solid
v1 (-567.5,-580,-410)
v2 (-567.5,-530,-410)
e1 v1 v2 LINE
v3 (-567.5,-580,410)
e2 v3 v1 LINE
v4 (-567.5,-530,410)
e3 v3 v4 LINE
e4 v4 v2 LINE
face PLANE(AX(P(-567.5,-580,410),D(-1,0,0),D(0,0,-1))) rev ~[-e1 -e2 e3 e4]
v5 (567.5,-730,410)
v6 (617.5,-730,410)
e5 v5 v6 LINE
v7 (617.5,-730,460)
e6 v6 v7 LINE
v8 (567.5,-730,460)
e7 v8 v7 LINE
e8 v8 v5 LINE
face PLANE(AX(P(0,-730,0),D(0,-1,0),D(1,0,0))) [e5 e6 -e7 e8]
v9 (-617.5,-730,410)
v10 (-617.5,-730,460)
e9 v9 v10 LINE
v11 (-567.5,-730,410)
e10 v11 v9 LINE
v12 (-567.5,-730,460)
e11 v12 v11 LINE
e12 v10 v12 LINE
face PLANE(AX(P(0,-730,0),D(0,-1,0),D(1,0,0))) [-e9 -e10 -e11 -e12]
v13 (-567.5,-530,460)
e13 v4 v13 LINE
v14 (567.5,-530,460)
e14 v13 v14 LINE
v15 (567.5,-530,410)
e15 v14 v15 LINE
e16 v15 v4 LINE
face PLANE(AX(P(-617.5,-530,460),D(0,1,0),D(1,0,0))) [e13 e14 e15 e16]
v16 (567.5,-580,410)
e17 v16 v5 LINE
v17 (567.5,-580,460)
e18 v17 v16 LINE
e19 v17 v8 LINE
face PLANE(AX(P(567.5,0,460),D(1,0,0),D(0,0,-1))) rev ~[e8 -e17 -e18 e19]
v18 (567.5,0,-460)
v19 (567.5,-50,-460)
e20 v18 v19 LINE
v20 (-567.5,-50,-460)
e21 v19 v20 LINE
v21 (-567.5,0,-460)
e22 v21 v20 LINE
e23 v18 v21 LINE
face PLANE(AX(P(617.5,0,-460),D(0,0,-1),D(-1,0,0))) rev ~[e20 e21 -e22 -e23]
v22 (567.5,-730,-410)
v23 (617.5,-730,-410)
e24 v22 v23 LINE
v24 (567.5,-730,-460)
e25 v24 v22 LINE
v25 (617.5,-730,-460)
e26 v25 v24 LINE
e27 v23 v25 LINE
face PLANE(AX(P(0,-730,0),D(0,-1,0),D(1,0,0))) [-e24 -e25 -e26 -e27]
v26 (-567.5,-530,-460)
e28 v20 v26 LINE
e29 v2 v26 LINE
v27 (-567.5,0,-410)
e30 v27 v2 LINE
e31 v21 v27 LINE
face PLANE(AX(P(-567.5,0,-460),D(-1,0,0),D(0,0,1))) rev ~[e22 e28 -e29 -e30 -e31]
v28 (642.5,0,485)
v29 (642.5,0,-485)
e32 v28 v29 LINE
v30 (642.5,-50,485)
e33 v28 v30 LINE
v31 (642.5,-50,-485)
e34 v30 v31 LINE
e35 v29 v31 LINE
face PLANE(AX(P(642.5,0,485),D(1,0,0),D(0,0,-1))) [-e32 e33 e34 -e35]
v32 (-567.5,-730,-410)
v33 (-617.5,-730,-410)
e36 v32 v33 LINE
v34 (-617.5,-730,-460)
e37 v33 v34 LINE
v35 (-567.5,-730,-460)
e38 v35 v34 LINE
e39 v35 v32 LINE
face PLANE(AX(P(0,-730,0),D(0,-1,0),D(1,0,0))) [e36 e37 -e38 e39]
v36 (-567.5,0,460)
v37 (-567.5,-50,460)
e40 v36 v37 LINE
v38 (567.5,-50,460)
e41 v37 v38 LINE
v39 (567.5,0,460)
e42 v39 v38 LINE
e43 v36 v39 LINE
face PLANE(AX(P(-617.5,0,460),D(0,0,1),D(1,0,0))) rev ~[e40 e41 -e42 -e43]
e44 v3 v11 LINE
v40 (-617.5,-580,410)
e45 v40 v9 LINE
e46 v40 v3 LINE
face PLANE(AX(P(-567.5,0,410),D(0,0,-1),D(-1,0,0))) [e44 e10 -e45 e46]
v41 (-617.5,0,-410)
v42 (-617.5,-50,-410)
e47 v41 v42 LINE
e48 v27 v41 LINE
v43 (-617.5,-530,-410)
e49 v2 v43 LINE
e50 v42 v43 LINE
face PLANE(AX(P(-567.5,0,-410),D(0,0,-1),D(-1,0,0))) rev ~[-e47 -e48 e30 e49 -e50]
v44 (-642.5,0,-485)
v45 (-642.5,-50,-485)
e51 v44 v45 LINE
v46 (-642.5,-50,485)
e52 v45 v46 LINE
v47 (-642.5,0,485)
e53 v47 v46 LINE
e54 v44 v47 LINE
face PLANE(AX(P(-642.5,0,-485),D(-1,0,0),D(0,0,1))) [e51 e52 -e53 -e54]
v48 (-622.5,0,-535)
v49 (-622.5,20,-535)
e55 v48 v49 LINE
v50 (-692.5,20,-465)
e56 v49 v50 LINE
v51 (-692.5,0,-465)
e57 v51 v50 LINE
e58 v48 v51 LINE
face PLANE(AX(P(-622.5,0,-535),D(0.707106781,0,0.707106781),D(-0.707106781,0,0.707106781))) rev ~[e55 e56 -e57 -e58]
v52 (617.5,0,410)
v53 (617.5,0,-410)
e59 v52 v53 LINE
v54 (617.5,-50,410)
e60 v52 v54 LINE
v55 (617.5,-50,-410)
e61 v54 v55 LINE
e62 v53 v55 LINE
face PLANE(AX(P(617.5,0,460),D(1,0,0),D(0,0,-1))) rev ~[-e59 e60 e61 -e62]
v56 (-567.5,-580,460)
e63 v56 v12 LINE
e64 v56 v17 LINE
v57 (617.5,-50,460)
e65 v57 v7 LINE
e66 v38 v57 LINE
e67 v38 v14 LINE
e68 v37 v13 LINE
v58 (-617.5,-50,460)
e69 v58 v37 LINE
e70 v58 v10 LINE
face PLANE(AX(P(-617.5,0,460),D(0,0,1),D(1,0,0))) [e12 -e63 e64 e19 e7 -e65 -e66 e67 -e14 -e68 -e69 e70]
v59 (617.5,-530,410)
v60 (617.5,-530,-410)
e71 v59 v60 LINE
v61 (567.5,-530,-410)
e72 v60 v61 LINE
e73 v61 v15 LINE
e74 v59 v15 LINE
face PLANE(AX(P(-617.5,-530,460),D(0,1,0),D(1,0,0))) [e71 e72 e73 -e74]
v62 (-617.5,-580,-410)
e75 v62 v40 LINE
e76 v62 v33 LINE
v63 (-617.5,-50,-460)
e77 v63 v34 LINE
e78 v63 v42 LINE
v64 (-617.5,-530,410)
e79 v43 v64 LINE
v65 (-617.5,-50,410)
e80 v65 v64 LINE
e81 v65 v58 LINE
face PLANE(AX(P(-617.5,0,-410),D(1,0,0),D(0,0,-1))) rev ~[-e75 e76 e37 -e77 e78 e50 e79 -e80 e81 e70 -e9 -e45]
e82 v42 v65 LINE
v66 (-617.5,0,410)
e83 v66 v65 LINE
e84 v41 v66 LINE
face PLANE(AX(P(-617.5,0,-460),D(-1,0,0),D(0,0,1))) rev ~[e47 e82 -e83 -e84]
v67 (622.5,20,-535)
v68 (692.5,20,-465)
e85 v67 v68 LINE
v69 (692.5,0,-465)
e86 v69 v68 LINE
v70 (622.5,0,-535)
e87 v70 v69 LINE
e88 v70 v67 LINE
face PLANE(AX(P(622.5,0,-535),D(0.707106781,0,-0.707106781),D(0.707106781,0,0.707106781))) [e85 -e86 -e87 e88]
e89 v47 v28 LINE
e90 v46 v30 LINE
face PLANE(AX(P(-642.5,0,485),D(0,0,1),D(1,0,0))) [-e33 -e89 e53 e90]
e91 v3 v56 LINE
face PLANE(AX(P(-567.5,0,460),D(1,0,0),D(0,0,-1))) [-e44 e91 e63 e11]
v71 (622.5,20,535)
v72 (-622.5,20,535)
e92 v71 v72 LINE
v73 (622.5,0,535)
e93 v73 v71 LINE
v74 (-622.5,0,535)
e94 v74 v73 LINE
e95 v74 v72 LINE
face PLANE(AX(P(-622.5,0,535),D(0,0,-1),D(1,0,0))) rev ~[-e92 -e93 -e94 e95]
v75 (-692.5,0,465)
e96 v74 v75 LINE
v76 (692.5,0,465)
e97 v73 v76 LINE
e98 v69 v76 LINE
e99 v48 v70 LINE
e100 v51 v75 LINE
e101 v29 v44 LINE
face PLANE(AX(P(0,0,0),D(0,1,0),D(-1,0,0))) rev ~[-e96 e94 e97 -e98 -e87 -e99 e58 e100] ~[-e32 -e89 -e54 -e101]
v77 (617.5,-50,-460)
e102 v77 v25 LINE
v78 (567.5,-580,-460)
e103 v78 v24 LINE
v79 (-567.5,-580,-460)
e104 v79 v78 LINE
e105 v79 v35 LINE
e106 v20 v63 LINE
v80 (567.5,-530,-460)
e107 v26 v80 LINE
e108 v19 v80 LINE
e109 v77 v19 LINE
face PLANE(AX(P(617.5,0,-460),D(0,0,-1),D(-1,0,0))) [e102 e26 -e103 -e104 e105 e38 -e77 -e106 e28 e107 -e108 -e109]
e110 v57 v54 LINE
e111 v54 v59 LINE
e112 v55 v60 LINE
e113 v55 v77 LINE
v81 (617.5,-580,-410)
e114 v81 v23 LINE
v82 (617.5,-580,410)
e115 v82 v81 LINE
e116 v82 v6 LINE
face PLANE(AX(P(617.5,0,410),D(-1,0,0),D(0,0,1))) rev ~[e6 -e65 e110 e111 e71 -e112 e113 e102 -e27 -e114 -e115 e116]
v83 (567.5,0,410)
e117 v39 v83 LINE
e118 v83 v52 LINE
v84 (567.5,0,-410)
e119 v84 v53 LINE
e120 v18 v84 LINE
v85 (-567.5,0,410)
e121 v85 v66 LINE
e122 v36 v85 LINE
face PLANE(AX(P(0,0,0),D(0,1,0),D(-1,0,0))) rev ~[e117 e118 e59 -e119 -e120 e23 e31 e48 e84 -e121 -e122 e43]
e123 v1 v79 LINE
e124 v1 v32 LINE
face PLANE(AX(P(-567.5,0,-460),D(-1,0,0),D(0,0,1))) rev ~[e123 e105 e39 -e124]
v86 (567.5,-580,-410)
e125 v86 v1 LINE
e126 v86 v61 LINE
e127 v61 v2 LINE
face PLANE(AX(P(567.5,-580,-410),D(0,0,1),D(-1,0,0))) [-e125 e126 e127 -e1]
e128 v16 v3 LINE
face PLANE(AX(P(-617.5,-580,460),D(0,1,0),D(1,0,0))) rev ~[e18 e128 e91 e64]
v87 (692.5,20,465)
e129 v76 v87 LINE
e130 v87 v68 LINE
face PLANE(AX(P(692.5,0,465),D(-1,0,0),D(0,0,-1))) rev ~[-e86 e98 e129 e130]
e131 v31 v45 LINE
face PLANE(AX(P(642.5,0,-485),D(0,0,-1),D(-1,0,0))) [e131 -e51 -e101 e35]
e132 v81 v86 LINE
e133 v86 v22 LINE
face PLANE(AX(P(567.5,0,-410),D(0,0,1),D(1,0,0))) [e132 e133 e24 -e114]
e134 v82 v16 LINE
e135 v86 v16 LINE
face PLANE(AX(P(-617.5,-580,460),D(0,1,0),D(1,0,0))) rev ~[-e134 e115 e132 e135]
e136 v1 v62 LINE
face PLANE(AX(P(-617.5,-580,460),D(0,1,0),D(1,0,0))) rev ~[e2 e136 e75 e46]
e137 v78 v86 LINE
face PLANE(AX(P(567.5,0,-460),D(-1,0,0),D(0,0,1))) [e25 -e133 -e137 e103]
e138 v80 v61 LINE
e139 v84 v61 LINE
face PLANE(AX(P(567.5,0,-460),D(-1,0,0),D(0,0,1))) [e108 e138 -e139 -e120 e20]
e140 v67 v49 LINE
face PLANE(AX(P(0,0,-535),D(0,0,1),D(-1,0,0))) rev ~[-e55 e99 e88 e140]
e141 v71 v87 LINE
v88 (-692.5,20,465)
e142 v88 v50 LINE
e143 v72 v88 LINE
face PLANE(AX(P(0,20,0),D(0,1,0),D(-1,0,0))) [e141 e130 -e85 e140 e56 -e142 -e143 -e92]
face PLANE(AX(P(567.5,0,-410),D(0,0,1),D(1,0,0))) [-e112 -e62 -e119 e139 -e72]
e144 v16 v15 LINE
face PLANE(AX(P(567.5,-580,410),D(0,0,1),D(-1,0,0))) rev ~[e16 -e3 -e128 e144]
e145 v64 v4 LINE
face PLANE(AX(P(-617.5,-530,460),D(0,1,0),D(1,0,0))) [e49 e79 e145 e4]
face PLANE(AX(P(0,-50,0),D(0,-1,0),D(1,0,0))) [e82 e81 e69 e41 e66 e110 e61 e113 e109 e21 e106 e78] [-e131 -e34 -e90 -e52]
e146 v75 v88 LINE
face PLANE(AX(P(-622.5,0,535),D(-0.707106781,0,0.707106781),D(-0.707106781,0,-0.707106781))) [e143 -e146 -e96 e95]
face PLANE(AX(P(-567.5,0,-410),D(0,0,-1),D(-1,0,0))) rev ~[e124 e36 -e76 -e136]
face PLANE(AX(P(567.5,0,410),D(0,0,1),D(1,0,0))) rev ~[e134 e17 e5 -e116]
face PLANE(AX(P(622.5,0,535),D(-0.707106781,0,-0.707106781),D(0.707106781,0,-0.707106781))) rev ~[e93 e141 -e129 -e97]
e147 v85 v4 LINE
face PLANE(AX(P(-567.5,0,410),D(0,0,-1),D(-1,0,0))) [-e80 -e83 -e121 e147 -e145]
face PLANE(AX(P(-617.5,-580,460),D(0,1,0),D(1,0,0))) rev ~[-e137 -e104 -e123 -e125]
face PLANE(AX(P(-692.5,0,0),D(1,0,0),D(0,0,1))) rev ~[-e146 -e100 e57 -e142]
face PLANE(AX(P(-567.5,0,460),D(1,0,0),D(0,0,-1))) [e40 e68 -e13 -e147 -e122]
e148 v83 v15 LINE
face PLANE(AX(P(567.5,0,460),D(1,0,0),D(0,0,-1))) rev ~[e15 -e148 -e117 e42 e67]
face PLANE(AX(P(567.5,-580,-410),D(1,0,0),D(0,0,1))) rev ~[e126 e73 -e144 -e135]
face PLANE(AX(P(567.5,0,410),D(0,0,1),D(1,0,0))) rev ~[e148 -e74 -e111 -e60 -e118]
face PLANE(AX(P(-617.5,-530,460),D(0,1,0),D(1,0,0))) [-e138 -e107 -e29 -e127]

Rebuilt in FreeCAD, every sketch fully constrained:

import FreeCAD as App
import Part
import Sketcher
Q = App.Units.Quantity

doc = App.newDocument("Part")
params = doc.addObject("Spreadsheet::Sheet", "Params")
for row, (alias, value) in enumerate([
    ("pad1_length", "20 mm"),
    ("sketch2_width", "1285 mm"),
    ("sketch2_height", "970 mm"),
    ("pad2_length", "50 mm"),
    ("sketch3_width", "50 mm"),
    ("pad3_length", "730 mm"),
    ("sketch4_width", "50 mm"),
    ("sketch4_width2", "1135 mm"),
    ("sketch4_height", "820 mm"),
    ("pad4_length", "50 mm"),
], start=1):
    params.set(f"A{row}", alias)
    params.set(f"B{row}", "=" + value)
    params.setAlias(f"B{row}", alias)

body = doc.addObject("PartDesign::Body", "Body")

sketch1 = body.newObject("Sketcher::SketchObject", "Sketch")
sketch1.AttachmentSupport = (doc.getObject("XZ_Plane"), [""])
sketch1.MapMode = "FlatFace"
sketch1.addGeometry([
    Part.LineSegment(App.Vector(-692, 465, 0), App.Vector(-622, 535, 0)),
    Part.LineSegment(App.Vector(-622, 535, 0), App.Vector(622, 535, 0)),
    Part.LineSegment(App.Vector(622, 535, 0), App.Vector(692, 465, 0)),
    Part.LineSegment(App.Vector(692, 465, 0), App.Vector(692, -465, 0)),
    Part.LineSegment(App.Vector(692, -465, 0), App.Vector(622, -535, 0)),
    Part.LineSegment(App.Vector(622, -535, 0), App.Vector(-622, -535, 0)),
    Part.LineSegment(App.Vector(-622, -535, 0), App.Vector(-692, -465, 0)),
    Part.LineSegment(App.Vector(-692, -465, 0), App.Vector(-692, 465, 0)),
], False)
sketch1.addConstraint([
    Sketcher.Constraint("Coincident", 0, 2, 1, 1),
    Sketcher.Constraint("Coincident", 1, 2, 2, 1),
    Sketcher.Constraint("Coincident", 2, 2, 3, 1),
    Sketcher.Constraint("Coincident", 3, 2, 4, 1),
    Sketcher.Constraint("Coincident", 4, 2, 5, 1),
    Sketcher.Constraint("Coincident", 5, 2, 6, 1),
    Sketcher.Constraint("Coincident", 6, 2, 7, 1),
    Sketcher.Constraint("Coincident", 7, 2, 0, 1),
    Sketcher.Constraint("Horizontal", 1),
    Sketcher.Constraint("Vertical", 3),
    Sketcher.Constraint("Horizontal", 5),
    Sketcher.Constraint("Vertical", 7),
    Sketcher.Constraint("Symmetric", 0, 2, 4, 2, -1, 1),
    Sketcher.Constraint("Symmetric", 2, 2, 6, 2, -1, 1),
    Sketcher.Constraint("Perpendicular", 0, 2),
    Sketcher.Constraint("Perpendicular", 2, 4),
    Sketcher.Constraint("Perpendicular", 4, 6),
    Sketcher.Constraint("Horizontal", 3, 2, 6, 2),
    Sketcher.Constraint("Vertical", 1, 2, 4, 2),
    Sketcher.Constraint("DistanceY", -1, 1, 0, 2, Q("535 mm")),
    Sketcher.Constraint("DistanceX", 1, 2, 2, 2, Q("70 mm")),
    Sketcher.Constraint("DistanceX", 6, 2, 3, 2, Q("1385 mm")),
])
pad1 = body.newObject("PartDesign::Pad", "Pad")
pad1.Profile = sketch1
pad1.setExpression("Length", "Params.pad1_length")
pad1.Reversed = True

sketch2 = body.newObject("Sketcher::SketchObject", "Sketch001")
sketch2.AttachmentSupport = (doc.getObject("XZ_Plane"), [""])
sketch2.MapMode = "FlatFace"
sketch2.addGeometry([
    Part.LineSegment(App.Vector(642, 485, 0), App.Vector(-642, 485, 0)),
    Part.LineSegment(App.Vector(-642, 485, 0), App.Vector(-642, -485, 0)),
    Part.LineSegment(App.Vector(-642, -485, 0), App.Vector(642, -485, 0)),
    Part.LineSegment(App.Vector(642, -485, 0), App.Vector(642, 485, 0)),
    Part.LineSegment(App.Vector(-618, -460, 0), App.Vector(-618, 460, 0)),
    Part.LineSegment(App.Vector(-618, 460, 0), App.Vector(618, 460, 0)),
    Part.LineSegment(App.Vector(618, 460, 0), App.Vector(618, -460, 0)),
    Part.LineSegment(App.Vector(618, -460, 0), App.Vector(-618, -460, 0)),
], False)
sketch2.addConstraint([
    Sketcher.Constraint("Coincident", 0, 2, 1, 1),
    Sketcher.Constraint("Coincident", 1, 2, 2, 1),
    Sketcher.Constraint("Coincident", 2, 2, 3, 1),
    Sketcher.Constraint("Coincident", 3, 2, 0, 1),
    Sketcher.Constraint("Coincident", 4, 2, 5, 1),
    Sketcher.Constraint("Coincident", 5, 2, 6, 1),
    Sketcher.Constraint("Coincident", 6, 2, 7, 1),
    Sketcher.Constraint("Coincident", 7, 2, 4, 1),
    Sketcher.Constraint("Horizontal", 0),
    Sketcher.Constraint("Vertical", 1),
    Sketcher.Constraint("Horizontal", 2),
    Sketcher.Constraint("Vertical", 3),
    Sketcher.Constraint("Vertical", 4),
    Sketcher.Constraint("Horizontal", 5),
    Sketcher.Constraint("Vertical", 6),
    Sketcher.Constraint("Horizontal", 7),
    Sketcher.Constraint("Symmetric", 0, 2, 2, 2, -1, 1),
    Sketcher.Constraint("Symmetric", 4, 2, 6, 2, -1, 1),
    Sketcher.Constraint("DistanceX", 0, 2, 4, 2, Q("25 mm")),
    Sketcher.Constraint("DistanceY", 4, 2, 0, 2, Q("25 mm")),
    Sketcher.Constraint("DistanceX", 0, 2, 0, 1, Q("1285 mm")),
    Sketcher.Constraint("DistanceY", 1, 2, 1, 1, Q("970 mm")),
])
sketch2.setExpression("Constraints[20]", "Params.sketch2_width")
sketch2.setExpression("Constraints[21]", "Params.sketch2_height")
pad2 = body.newObject("PartDesign::Pad", "Pad001")
pad2.Profile = sketch2
pad2.setExpression("Length", "Params.pad2_length")

sketch3 = body.newObject("Sketcher::SketchObject", "Sketch002")
sketch3.AttachmentSupport = (doc.getObject("XZ_Plane"), [""])
sketch3.MapMode = "FlatFace"
sketch3.addGeometry([
    Part.LineSegment(App.Vector(618, 460, 0), App.Vector(568, 460, 0)),
    Part.LineSegment(App.Vector(568, 460, 0), App.Vector(568, 410, 0)),
    Part.LineSegment(App.Vector(568, 410, 0), App.Vector(618, 410, 0)),
    Part.LineSegment(App.Vector(618, 410, 0), App.Vector(618, 460, 0)),
    Part.LineSegment(App.Vector(568, -410, 0), App.Vector(568, -460, 0)),
    Part.LineSegment(App.Vector(568, -460, 0), App.Vector(618, -460, 0)),
    Part.LineSegment(App.Vector(618, -460, 0), App.Vector(618, -410, 0)),
    Part.LineSegment(App.Vector(618, -410, 0), App.Vector(568, -410, 0)),
    Part.LineSegment(App.Vector(-568, 460, 0), App.Vector(-618, 460, 0)),
    Part.LineSegment(App.Vector(-618, 460, 0), App.Vector(-618, 410, 0)),
    Part.LineSegment(App.Vector(-618, 410, 0), App.Vector(-568, 410, 0)),
    Part.LineSegment(App.Vector(-568, 410, 0), App.Vector(-568, 460, 0)),
    Part.LineSegment(App.Vector(-568, -410, 0), App.Vector(-618, -410, 0)),
    Part.LineSegment(App.Vector(-618, -410, 0), App.Vector(-618, -460, 0)),
    Part.LineSegment(App.Vector(-618, -460, 0), App.Vector(-568, -460, 0)),
    Part.LineSegment(App.Vector(-568, -460, 0), App.Vector(-568, -410, 0)),
], False)
sketch3.addConstraint([
    Sketcher.Constraint("Coincident", 0, 2, 1, 1),
    Sketcher.Constraint("Coincident", 1, 2, 2, 1),
    Sketcher.Constraint("Coincident", 2, 2, 3, 1),
    Sketcher.Constraint("Coincident", 3, 2, 0, 1),
    Sketcher.Constraint("Coincident", 4, 2, 5, 1),
    Sketcher.Constraint("Coincident", 5, 2, 6, 1),
    Sketcher.Constraint("Coincident", 6, 2, 7, 1),
    Sketcher.Constraint("Coincident", 7, 2, 4, 1),
    Sketcher.Constraint("Coincident", 8, 2, 9, 1),
    Sketcher.Constraint("Coincident", 9, 2, 10, 1),
    Sketcher.Constraint("Coincident", 10, 2, 11, 1),
    Sketcher.Constraint("Coincident", 11, 2, 8, 1),
    Sketcher.Constraint("Coincident", 12, 2, 13, 1),
    Sketcher.Constraint("Coincident", 13, 2, 14, 1),
    Sketcher.Constraint("Coincident", 14, 2, 15, 1),
    Sketcher.Constraint("Coincident", 15, 2, 12, 1),
    Sketcher.Constraint("Horizontal", 0),
    Sketcher.Constraint("Vertical", 1),
    Sketcher.Constraint("Horizontal", 2),
    Sketcher.Constraint("Vertical", 3),
    Sketcher.Constraint("Vertical", 4),
    Sketcher.Constraint("Horizontal", 5),
    Sketcher.Constraint("Vertical", 6),
    Sketcher.Constraint("Horizontal", 7),
    Sketcher.Constraint("Horizontal", 8),
    Sketcher.Constraint("Vertical", 9),
    Sketcher.Constraint("Horizontal", 10),
    Sketcher.Constraint("Vertical", 11),
    Sketcher.Constraint("Horizontal", 12),
    Sketcher.Constraint("Vertical", 13),
    Sketcher.Constraint("Horizontal", 14),
    Sketcher.Constraint("Vertical", 15),
    Sketcher.Constraint("Symmetric", 5, 2, 8, 2, -1, 1),
    Sketcher.Constraint("Symmetric", 7, 2, 10, 2, -1, 1),
    Sketcher.Constraint("Symmetric", 2, 2, 12, 2, -1, 1),
    Sketcher.Constraint("Symmetric", 0, 2, 14, 2, -1, 1),
    Sketcher.Constraint("Symmetric", 3, 2, 8, 2, -2),
    Sketcher.Constraint("Symmetric", 1, 2, 10, 2, -2),
    Sketcher.Constraint("Equal", 14, 1),
    Sketcher.Constraint("DistanceX", 0, 2, 0, 1, Q("50 mm")),
    Sketcher.Constraint("DistanceY", -1, 1, 0, 2, Q("460 mm")),
    Sketcher.Constraint("DistanceX", 8, 2, 0, 2, Q("1185 mm")),
])
sketch3.setExpression("Constraints[39]", "Params.sketch3_width")
pad3 = body.newObject("PartDesign::Pad", "Pad002")
pad3.Profile = sketch3
pad3.setExpression("Length", "Params.pad3_length")

sketch4 = body.newObject("Sketcher::SketchObject", "Sketch003")
sketch4.AttachmentSupport = (doc.getObject("XZ_Plane"), [""])
sketch4.MapMode = "FlatFace"
sketch4.AttachmentOffset = App.Placement(App.Vector(0, 0, 580), App.Rotation())
sketch4.addGeometry([
    Part.LineSegment(App.Vector(568, 410, 0), App.Vector(618, 410, 0)),
    Part.LineSegment(App.Vector(618, 410, 0), App.Vector(618, -410, 0)),
    Part.LineSegment(App.Vector(618, -410, 0), App.Vector(568, -410, 0)),
    Part.LineSegment(App.Vector(568, -410, 0), App.Vector(568, 410, 0)),
    Part.LineSegment(App.Vector(568, 460, 0), App.Vector(568, 410, 0)),
    Part.LineSegment(App.Vector(568, 410, 0), App.Vector(-568, 410, 0)),
    Part.LineSegment(App.Vector(-568, 410, 0), App.Vector(-568, 460, 0)),
    Part.LineSegment(App.Vector(-568, 460, 0), App.Vector(568, 460, 0)),
    Part.LineSegment(App.Vector(-618, 410, 0), App.Vector(-568, 410, 0)),
    Part.LineSegment(App.Vector(-568, 410, 0), App.Vector(-568, -410, 0)),
    Part.LineSegment(App.Vector(-568, -410, 0), App.Vector(-618, -410, 0)),
    Part.LineSegment(App.Vector(-618, -410, 0), App.Vector(-618, 410, 0)),
    Part.LineSegment(App.Vector(-568, -410, 0), App.Vector(568, -410, 0)),
    Part.LineSegment(App.Vector(568, -410, 0), App.Vector(568, -460, 0)),
    Part.LineSegment(App.Vector(568, -460, 0), App.Vector(-568, -460, 0)),
    Part.LineSegment(App.Vector(-568, -460, 0), App.Vector(-568, -410, 0)),
], False)
sketch4.addConstraint([
    Sketcher.Constraint("Coincident", 0, 2, 1, 1),
    Sketcher.Constraint("Coincident", 1, 2, 2, 1),
    Sketcher.Constraint("Coincident", 2, 2, 3, 1),
    Sketcher.Constraint("Coincident", 3, 2, 0, 1),
    Sketcher.Constraint("Coincident", 4, 2, 5, 1),
    Sketcher.Constraint("Coincident", 5, 2, 6, 1),
    Sketcher.Constraint("Coincident", 6, 2, 7, 1),
    Sketcher.Constraint("Coincident", 7, 2, 4, 1),
    Sketcher.Constraint("Coincident", 8, 2, 9, 1),
    Sketcher.Constraint("Coincident", 9, 2, 10, 1),
    Sketcher.Constraint("Coincident", 10, 2, 11, 1),
    Sketcher.Constraint("Coincident", 11, 2, 8, 1),
    Sketcher.Constraint("Coincident", 12, 2, 13, 1),
    Sketcher.Constraint("Coincident", 13, 2, 14, 1),
    Sketcher.Constraint("Coincident", 14, 2, 15, 1),
    Sketcher.Constraint("Coincident", 15, 2, 12, 1),
    Sketcher.Constraint("Horizontal", 0),
    Sketcher.Constraint("Vertical", 1),
    Sketcher.Constraint("Horizontal", 2),
    Sketcher.Constraint("Vertical", 3),
    Sketcher.Constraint("Vertical", 4),
    Sketcher.Constraint("Horizontal", 5),
    Sketcher.Constraint("Vertical", 6),
    Sketcher.Constraint("Horizontal", 7),
    Sketcher.Constraint("Horizontal", 8),
    Sketcher.Constraint("Vertical", 9),
    Sketcher.Constraint("Horizontal", 10),
    Sketcher.Constraint("Vertical", 11),
    Sketcher.Constraint("Horizontal", 12),
    Sketcher.Constraint("Vertical", 13),
    Sketcher.Constraint("Horizontal", 14),
    Sketcher.Constraint("Vertical", 15),
    Sketcher.Constraint("Coincident", 4, 2, 3, 2),
    Sketcher.Constraint("Coincident", 8, 2, 5, 2),
    Sketcher.Constraint("Coincident", 12, 2, 2, 2),
    Sketcher.Constraint("Coincident", 15, 2, 9, 2),
    Sketcher.Constraint("Symmetric", 2, 2, 5, 2, -1, 1),
    Sketcher.Constraint("Equal", 2, 8),
    Sketcher.Constraint("Equal", 10, 4),
    Sketcher.Constraint("Equal", 6, 13),
    Sketcher.Constraint("DistanceX", 0, 1, 0, 2, Q("50 mm")),
    Sketcher.Constraint("DistanceX", 5, 2, 5, 1, Q("1135 mm")),
    Sketcher.Constraint("DistanceY", 1, 2, 1, 1, Q("820 mm")),
])
sketch4.setExpression("Constraints[40]", "Params.sketch4_width")
sketch4.setExpression("Constraints[41]", "Params.sketch4_width2")
sketch4.setExpression("Constraints[42]", "Params.sketch4_height")
pad4 = body.newObject("PartDesign::Pad", "Pad003")
pad4.Profile = sketch4
pad4.setExpression("Length", "Params.pad4_length")
pad4.Reversed = True

doc.recompute()
